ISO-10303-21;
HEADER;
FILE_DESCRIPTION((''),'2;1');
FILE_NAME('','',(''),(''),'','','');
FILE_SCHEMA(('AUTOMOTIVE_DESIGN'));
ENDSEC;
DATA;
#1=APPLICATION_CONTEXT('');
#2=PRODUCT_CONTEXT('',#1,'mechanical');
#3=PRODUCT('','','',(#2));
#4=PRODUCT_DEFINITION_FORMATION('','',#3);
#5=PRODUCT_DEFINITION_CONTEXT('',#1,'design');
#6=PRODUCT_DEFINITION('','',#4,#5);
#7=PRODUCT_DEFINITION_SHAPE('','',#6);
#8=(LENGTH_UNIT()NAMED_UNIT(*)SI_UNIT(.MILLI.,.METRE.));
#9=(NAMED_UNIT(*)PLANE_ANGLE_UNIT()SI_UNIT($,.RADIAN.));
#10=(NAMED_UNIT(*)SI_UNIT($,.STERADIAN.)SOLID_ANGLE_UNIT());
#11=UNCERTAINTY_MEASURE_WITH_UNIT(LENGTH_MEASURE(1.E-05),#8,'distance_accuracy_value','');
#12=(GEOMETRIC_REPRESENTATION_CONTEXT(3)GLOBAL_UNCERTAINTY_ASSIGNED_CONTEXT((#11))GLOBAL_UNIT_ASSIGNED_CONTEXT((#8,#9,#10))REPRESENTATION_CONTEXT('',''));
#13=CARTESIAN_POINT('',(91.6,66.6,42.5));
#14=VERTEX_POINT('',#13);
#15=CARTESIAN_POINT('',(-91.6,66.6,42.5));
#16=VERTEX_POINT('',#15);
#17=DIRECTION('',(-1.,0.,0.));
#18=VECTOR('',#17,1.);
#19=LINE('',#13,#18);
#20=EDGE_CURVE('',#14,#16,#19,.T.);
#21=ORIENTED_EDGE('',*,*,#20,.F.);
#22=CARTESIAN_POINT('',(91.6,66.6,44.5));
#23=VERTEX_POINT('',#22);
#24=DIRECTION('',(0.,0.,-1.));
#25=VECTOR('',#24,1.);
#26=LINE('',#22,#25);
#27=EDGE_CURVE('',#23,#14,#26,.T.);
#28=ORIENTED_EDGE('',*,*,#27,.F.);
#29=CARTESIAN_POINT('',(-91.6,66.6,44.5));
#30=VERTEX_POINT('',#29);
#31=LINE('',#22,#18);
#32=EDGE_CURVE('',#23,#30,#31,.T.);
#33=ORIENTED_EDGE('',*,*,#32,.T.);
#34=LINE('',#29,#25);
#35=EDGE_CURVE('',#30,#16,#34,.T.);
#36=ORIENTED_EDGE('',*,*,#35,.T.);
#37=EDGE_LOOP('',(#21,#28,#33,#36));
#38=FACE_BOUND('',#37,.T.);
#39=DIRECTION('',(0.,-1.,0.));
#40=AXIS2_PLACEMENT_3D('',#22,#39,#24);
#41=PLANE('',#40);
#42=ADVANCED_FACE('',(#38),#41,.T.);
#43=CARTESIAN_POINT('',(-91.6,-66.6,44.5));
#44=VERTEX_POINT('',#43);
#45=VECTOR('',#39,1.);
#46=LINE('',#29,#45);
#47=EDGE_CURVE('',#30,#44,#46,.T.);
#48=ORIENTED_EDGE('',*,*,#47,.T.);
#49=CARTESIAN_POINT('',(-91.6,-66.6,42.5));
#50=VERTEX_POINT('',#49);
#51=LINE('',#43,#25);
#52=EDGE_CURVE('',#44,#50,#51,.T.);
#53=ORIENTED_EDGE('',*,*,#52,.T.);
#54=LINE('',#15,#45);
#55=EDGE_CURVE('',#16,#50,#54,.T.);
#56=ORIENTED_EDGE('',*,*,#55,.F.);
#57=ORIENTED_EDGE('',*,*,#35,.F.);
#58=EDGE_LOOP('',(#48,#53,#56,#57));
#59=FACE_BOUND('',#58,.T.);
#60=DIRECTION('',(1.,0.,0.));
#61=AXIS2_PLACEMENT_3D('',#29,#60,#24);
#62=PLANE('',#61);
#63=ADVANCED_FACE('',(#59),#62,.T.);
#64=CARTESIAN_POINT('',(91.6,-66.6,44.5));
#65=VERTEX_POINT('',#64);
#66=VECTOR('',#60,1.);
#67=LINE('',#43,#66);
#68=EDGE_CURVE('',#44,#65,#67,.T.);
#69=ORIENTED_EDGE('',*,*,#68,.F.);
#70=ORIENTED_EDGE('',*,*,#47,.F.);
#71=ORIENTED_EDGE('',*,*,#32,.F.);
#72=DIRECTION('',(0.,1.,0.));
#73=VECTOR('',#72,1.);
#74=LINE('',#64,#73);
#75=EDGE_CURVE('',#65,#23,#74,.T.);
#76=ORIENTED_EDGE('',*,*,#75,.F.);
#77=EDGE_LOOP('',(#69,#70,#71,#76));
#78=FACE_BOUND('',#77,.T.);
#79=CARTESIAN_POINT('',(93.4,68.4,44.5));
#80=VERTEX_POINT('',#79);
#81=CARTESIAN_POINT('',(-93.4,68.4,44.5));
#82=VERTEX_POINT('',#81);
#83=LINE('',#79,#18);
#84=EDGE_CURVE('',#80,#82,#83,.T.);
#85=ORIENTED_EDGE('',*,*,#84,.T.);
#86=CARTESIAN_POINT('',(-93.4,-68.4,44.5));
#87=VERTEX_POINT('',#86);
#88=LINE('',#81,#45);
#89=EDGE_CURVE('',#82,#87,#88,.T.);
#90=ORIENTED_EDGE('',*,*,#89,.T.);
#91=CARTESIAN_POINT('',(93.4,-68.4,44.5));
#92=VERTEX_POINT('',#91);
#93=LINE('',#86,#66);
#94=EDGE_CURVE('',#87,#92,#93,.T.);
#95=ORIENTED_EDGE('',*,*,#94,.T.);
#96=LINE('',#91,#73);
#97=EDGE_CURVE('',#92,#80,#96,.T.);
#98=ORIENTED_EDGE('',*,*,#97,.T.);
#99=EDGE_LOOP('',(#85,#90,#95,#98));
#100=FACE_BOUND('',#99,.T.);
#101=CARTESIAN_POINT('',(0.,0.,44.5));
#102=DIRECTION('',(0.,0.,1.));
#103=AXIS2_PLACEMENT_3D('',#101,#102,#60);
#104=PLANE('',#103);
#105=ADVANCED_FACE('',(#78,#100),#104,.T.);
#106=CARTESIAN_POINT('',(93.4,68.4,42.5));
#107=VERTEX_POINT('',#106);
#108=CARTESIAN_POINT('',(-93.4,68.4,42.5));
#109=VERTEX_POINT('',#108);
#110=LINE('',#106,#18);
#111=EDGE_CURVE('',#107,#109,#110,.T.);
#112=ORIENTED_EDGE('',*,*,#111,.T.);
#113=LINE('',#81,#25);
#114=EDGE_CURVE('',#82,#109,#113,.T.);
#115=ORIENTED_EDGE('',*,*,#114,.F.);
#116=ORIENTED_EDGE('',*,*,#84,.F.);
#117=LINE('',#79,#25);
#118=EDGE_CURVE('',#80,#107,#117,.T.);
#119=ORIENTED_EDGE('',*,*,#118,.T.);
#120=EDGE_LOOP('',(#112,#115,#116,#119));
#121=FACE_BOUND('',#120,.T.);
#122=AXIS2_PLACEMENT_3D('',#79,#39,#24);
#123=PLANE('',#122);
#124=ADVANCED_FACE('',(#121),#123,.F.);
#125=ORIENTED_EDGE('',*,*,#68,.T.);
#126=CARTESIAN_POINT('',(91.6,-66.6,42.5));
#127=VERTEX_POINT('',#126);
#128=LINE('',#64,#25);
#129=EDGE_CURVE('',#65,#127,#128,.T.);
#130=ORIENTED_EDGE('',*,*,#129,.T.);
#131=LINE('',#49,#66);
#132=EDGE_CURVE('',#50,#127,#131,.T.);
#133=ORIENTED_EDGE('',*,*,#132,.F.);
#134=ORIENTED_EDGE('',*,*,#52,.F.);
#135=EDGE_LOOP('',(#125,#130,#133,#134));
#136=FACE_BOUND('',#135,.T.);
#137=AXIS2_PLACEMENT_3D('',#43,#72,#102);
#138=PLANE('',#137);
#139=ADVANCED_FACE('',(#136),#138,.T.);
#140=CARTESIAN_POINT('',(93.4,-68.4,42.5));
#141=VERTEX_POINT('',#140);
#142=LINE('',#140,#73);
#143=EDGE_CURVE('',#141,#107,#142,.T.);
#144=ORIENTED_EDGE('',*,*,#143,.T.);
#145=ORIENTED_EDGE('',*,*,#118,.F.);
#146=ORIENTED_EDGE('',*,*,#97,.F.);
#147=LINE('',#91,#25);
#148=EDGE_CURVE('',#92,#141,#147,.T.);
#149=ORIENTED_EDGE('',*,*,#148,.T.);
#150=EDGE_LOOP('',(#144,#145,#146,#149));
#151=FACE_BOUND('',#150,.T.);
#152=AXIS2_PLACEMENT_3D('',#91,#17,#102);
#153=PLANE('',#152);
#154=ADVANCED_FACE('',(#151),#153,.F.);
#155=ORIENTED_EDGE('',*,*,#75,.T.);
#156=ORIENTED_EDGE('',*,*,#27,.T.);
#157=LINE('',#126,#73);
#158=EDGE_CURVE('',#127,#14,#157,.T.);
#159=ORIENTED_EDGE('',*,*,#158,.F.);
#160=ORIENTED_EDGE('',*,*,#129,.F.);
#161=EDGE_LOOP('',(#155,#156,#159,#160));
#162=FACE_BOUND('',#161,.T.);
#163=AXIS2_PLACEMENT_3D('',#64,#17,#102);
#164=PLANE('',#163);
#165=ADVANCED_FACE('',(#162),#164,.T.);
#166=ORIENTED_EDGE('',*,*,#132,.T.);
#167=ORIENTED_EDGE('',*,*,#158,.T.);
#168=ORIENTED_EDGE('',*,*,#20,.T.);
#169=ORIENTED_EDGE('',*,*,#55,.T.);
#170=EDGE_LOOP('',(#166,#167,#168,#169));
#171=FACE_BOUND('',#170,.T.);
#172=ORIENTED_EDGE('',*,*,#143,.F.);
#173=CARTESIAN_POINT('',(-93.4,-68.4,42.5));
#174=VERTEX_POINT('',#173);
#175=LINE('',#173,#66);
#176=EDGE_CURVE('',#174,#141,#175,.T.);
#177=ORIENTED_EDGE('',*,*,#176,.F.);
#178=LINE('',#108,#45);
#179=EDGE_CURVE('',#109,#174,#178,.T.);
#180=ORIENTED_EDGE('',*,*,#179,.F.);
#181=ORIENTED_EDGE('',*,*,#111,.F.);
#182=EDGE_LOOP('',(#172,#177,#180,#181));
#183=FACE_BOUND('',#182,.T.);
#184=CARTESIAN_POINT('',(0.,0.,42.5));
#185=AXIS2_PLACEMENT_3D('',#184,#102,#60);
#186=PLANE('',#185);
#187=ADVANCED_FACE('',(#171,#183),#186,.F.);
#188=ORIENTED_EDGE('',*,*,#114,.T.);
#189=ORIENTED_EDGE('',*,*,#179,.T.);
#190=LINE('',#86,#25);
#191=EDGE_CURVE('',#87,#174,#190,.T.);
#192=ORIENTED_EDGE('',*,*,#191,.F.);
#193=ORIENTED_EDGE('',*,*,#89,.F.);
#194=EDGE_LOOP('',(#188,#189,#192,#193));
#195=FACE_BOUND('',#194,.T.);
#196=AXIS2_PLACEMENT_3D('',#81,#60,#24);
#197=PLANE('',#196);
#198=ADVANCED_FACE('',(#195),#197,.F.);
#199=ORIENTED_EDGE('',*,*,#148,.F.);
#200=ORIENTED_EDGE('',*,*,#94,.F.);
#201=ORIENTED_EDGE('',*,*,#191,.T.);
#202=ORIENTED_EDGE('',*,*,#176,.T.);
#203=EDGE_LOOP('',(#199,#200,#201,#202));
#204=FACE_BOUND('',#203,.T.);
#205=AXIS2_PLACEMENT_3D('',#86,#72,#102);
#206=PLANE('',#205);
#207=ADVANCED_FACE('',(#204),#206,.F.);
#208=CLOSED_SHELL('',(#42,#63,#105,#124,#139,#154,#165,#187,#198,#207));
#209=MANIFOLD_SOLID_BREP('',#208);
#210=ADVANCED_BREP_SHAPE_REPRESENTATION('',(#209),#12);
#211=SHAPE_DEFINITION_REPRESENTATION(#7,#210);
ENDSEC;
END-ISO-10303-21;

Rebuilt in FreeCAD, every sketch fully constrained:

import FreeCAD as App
import Part
import Sketcher
Q = App.Units.Quantity


def add_polygon(sketch, points):
    """Adds a closed chain of lines whose ends are joined by coincident constraints."""
    first, n = sketch.GeometryCount, len(points)
    for a, b in zip(points, points[1:] + points[:1]):
        sketch.addGeometry(Part.LineSegment(App.Vector(*a, 0), App.Vector(*b, 0)), False)
    for i in range(n):
        sketch.addConstraint(Sketcher.Constraint("Coincident", first + i, 2, first + (i + 1) % n, 1))

doc = App.newDocument("Part")
params = doc.addObject("Spreadsheet::Sheet", "Params")
for row, (alias, value) in enumerate([
    ("sketch1_width", "186.8 mm"),
    ("sketch1_width2", "183.2 mm"),
    ("sketch1_height", "136.8 mm"),
    ("sketch1_height2", "133.2 mm"),
    ("pad1_length", "2 mm"),
], start=1):
    params.set(f"A{row}", alias)
    params.set(f"B{row}", "=" + value)
    params.setAlias(f"B{row}", alias)

body = doc.addObject("PartDesign::Body", "Body")

# Sketch on XY plane
sketch1 = body.newObject("Sketcher::SketchObject", "Sketch")
sketch1.AttachmentSupport = (doc.getObject("XY_Plane"), [""])
sketch1.MapMode = "FlatFace"
sketch1.AttachmentOffset = App.Placement(App.Vector(0, 0, 42.5), App.Rotation())
add_polygon(sketch1, [(-93, 68), (-93, -68), (93, -68), (93, 68)])  # lines 0-3
add_polygon(sketch1, [(92, -67), (-92, -67), (-92, 67), (92, 67)])  # lines 4-7
sketch1.addConstraint(Sketcher.Constraint("Vertical", 0))
sketch1.addConstraint(Sketcher.Constraint("Horizontal", 1))
sketch1.addConstraint(Sketcher.Constraint("Vertical", 2))
sketch1.addConstraint(Sketcher.Constraint("Horizontal", 3))
sketch1.addConstraint(Sketcher.Constraint("Horizontal", 4))
sketch1.addConstraint(Sketcher.Constraint("Vertical", 5))
sketch1.addConstraint(Sketcher.Constraint("Horizontal", 6))
sketch1.addConstraint(Sketcher.Constraint("Vertical", 7))
sketch1.addConstraint(Sketcher.Constraint("Symmetric", 0, 2, 2, 2, -1, 1))
sketch1.addConstraint(Sketcher.Constraint("Symmetric", 4, 2, 6, 2, -1, 1))
sketch1.addConstraint(Sketcher.Constraint("DistanceX", 1, 1, 1, 2, Q("186.8 mm")))
sketch1.addConstraint(Sketcher.Constraint("DistanceX", 4, 2, 4, 1, Q("183.2 mm")))
sketch1.addConstraint(Sketcher.Constraint("DistanceY", 0, 2, 0, 1, Q("136.8 mm")))
sketch1.addConstraint(Sketcher.Constraint("DistanceY", 5, 1, 5, 2, Q("133.2 mm")))
sketch1.setExpression("Constraints[18]", "Params.sketch1_width")
sketch1.setExpression("Constraints[19]", "Params.sketch1_width2")
sketch1.setExpression("Constraints[20]", "Params.sketch1_height")
sketch1.setExpression("Constraints[21]", "Params.sketch1_height2")
pad1 = body.newObject("PartDesign::Pad", "Pad")
pad1.Profile = sketch1
pad1.setExpression("Length", "Params.pad1_length")

doc.recompute()
